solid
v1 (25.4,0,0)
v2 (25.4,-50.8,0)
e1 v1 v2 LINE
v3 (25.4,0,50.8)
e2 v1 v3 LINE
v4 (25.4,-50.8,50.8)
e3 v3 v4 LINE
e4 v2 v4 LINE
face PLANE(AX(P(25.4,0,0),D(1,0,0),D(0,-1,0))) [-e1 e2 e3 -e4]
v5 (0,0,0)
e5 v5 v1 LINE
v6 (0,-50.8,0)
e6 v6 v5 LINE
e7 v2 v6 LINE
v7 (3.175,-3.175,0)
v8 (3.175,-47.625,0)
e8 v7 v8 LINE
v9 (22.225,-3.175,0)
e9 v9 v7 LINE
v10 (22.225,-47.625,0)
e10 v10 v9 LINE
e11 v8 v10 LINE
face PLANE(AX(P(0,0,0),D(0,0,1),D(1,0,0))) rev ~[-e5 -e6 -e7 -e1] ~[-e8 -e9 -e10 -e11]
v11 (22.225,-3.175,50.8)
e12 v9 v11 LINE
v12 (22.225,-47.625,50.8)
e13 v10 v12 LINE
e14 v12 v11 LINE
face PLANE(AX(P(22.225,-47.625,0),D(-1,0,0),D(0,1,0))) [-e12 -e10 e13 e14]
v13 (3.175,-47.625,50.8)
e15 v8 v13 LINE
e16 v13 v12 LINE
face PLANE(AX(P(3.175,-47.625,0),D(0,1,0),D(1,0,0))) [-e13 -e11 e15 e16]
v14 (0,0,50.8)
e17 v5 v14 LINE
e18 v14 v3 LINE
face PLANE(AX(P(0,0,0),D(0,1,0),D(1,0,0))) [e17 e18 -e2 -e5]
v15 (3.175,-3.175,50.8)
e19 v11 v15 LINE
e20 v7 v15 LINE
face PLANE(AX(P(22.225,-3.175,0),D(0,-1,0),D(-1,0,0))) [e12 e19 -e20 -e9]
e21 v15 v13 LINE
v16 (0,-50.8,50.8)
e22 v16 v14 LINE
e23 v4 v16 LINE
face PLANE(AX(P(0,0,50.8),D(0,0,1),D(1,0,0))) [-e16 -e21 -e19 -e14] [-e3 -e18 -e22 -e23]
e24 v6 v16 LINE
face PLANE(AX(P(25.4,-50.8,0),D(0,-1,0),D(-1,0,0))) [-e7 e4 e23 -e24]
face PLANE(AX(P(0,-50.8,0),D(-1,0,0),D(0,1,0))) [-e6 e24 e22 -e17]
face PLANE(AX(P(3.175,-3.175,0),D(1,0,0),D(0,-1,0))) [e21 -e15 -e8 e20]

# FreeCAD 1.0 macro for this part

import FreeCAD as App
import Part
import Sketcher
Q = App.Units.Quantity


def add_polygon(sketch, points):
    """Adds a closed chain of lines whose ends are joined by coincident constraints."""
    first, n = sketch.GeometryCount, len(points)
    for a, b in zip(points, points[1:] + points[:1]):
        sketch.addGeometry(Part.LineSegment(App.Vector(*a, 0), App.Vector(*b, 0)), False)
    for i in range(n):
        sketch.addConstraint(Sketcher.Constraint("Coincident", first + i, 2, first + (i + 1) % n, 1))

doc = App.newDocument("Part")
body = doc.addObject("PartDesign::Body", "Body")

sketch1 = body.newObject("Sketcher::SketchObject", "Sketch")
sketch1.AttachmentSupport = (doc.getObject("XY_Plane"), [""])
sketch1.MapMode = "FlatFace"
add_polygon(sketch1, [(25, 0), (0, 0), (0, -51), (25, -51)])
add_polygon(sketch1, [(3, -3), (22, -3), (22, -48), (3, -48)])
sketch1.addConstraint(Sketcher.Constraint("Horizontal", 0))
sketch1.addConstraint(Sketcher.Constraint("Vertical", 1))
sketch1.addConstraint(Sketcher.Constraint("Horizontal", 2))
sketch1.addConstraint(Sketcher.Constraint("Vertical", 3))
sketch1.addConstraint(Sketcher.Constraint("Horizontal", 4))
sketch1.addConstraint(Sketcher.Constraint("Vertical", 5))
sketch1.addConstraint(Sketcher.Constraint("Horizontal", 6))
sketch1.addConstraint(Sketcher.Constraint("Vertical", 7))
sketch1.addConstraint(Sketcher.Constraint("Coincident", 0, 2, -1, 1))
sketch1.addConstraint(Sketcher.Constraint("DistanceX", 0, 2, 0, 1, Q("1 in")))
sketch1.addConstraint(Sketcher.Constraint("DistanceY", 1, 2, 1, 1, Q("2 in")))
sketch1.addConstraint(Sketcher.Constraint("DistanceY", 4, 2, -1, 1, Q("0.125 in")))
sketch1.addConstraint(Sketcher.Constraint("DistanceX", -1, 1, 6, 2, Q("0.125 in")))
sketch1.addConstraint(Sketcher.Constraint("DistanceX", 4, 2, 3, 2, Q("0.125 in")))
sketch1.addConstraint(Sketcher.Constraint("DistanceY", 2, 2, 5, 2, Q("0.125 in")))
pad1 = body.newObject("PartDesign::Pad", "Pad")
pad1.Profile = sketch1
pad1.Length = Q("2 in")

doc.recompute()
